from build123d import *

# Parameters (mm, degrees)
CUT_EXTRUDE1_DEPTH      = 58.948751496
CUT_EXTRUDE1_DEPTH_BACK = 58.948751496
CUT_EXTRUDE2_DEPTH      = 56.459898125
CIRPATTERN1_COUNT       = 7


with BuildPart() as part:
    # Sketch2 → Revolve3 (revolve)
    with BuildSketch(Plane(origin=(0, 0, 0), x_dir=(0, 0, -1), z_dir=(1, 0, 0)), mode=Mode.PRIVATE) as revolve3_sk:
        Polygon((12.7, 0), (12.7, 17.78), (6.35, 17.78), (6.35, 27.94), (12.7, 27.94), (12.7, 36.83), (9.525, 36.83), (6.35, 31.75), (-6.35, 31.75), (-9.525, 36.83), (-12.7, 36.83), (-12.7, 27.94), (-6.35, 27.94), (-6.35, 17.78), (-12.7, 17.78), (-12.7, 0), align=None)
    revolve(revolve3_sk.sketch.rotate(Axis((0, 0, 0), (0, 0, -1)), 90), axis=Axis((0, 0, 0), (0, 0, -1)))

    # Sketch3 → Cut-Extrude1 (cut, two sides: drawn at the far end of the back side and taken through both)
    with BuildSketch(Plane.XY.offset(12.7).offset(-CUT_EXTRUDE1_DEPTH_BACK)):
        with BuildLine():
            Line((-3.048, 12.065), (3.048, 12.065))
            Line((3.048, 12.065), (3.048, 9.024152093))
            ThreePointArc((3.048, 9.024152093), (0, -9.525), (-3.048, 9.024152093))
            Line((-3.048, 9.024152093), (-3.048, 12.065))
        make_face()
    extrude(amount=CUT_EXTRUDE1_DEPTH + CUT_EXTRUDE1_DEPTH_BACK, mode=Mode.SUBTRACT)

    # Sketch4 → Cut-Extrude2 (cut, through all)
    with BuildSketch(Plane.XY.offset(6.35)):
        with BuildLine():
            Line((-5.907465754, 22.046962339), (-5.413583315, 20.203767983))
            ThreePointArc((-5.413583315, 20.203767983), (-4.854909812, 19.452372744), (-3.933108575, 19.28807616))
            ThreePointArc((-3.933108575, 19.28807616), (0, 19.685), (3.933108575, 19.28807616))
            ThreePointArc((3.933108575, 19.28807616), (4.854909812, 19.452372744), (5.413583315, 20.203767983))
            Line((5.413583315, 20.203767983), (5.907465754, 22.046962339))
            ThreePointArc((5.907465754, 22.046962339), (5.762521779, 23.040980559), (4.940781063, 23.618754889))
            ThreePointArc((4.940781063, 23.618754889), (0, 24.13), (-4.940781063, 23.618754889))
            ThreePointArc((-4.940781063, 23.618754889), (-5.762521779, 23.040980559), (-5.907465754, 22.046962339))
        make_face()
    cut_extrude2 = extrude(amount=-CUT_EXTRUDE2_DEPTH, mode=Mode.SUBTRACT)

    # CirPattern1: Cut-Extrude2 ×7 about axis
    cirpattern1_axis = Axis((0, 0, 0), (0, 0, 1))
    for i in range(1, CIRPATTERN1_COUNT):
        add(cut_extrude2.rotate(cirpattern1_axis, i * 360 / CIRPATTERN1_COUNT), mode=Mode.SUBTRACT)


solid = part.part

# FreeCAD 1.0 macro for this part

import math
import FreeCAD as App
import Part
import Sketcher
from FreeCAD import Vector
Q = App.Units.Quantity

doc = App.newDocument("Part")
params = doc.addObject("Spreadsheet::Sheet", "Params")
for row, (alias, value) in enumerate([
    ("sketch1_height", "1 in"),
    ("sketch1_width", "0.7 in"),
    ("sketch1_width2", "0.4 in"),
    ("sketch1_height2", "0.5 in"),
    ("sketch1_width3", "0.35 in"),
    ("revolution_angle", "360 deg"),
    ("sketch2_radius", "0.375 in"),
    ("sketch2_width", "0.24 in"),
    ("sketch3_radius", "0.05 in"),
    ("sketch3_radius2", "0.95 in"),
    ("sketch3_radius3", "0.775 in"),
], start=1):
    params.set(f"A{row}", alias)
    params.set(f"B{row}", "=" + value)
    params.setAlias(f"B{row}", alias)

body = doc.addObject("PartDesign::Body", "Body")

sketch1 = body.newObject("Sketcher::SketchObject", "Sketch")
sketch1.AttachmentSupport = (doc.getObject("YZ_Plane"), [""])
sketch1.MapMode = "FlatFace"
sketch1.addGeometry([
    Part.LineSegment(Vector(0, -12.7, 0), Vector(17.78, -12.7, 0)),
    Part.LineSegment(Vector(17.78, -12.7, 0), Vector(17.78, -6.35, 0)),
    Part.LineSegment(Vector(17.78, -6.35, 0), Vector(27.94, -6.35, 0)),
    Part.LineSegment(Vector(27.94, -6.35, 0), Vector(27.94, -12.7, 0)),
    Part.LineSegment(Vector(27.94, -12.7, 0), Vector(36.83, -12.7, 0)),
    Part.LineSegment(Vector(36.83, -12.7, 0), Vector(36.83, -9.525, 0)),
    Part.LineSegment(Vector(36.83, -9.525, 0), Vector(31.75, -6.35, 0)),
    Part.LineSegment(Vector(31.75, -6.35, 0), Vector(31.75, 6.35, 0)),
    Part.LineSegment(Vector(31.75, 6.35, 0), Vector(36.83, 9.525, 0)),
    Part.LineSegment(Vector(36.83, 9.525, 0), Vector(36.83, 12.7, 0)),
    Part.LineSegment(Vector(36.83, 12.7, 0), Vector(27.94, 12.7, 0)),
    Part.LineSegment(Vector(27.94, 12.7, 0), Vector(27.94, 6.35, 0)),
    Part.LineSegment(Vector(27.94, 6.35, 0), Vector(17.78, 6.35, 0)),
    Part.LineSegment(Vector(17.78, 6.35, 0), Vector(17.78, 12.7, 0)),
    Part.LineSegment(Vector(17.78, 12.7, 0), Vector(0, 12.7, 0)),
    Part.LineSegment(Vector(0, 12.7, 0), Vector(0, -12.7, 0)),
], False)
sketch1.addConstraint([
    Sketcher.Constraint("Coincident", 0, 2, 1, 1),
    Sketcher.Constraint("Coincident", 1, 2, 2, 1),
    Sketcher.Constraint("Coincident", 2, 2, 3, 1),
    Sketcher.Constraint("Coincident", 3, 2, 4, 1),
    Sketcher.Constraint("Coincident", 4, 2, 5, 1),
    Sketcher.Constraint("Coincident", 5, 2, 6, 1),
    Sketcher.Constraint("Coincident", 6, 2, 7, 1),
    Sketcher.Constraint("Coincident", 7, 2, 8, 1),
    Sketcher.Constraint("Coincident", 8, 2, 9, 1),
    Sketcher.Constraint("Coincident", 9, 2, 10, 1),
    Sketcher.Constraint("Coincident", 10, 2, 11, 1),
    Sketcher.Constraint("Coincident", 11, 2, 12, 1),
    Sketcher.Constraint("Coincident", 12, 2, 13, 1),
    Sketcher.Constraint("Coincident", 13, 2, 14, 1),
    Sketcher.Constraint("Coincident", 14, 2, 15, 1),
    Sketcher.Constraint("Coincident", 15, 2, 0, 1),
    Sketcher.Constraint("Horizontal", 0),
    Sketcher.Constraint("Vertical", 1),
    Sketcher.Constraint("Horizontal", 2),
    Sketcher.Constraint("Vertical", 3),
    Sketcher.Constraint("Horizontal", 4),
    Sketcher.Constraint("Vertical", 5),
    Sketcher.Constraint("Vertical", 7),
    Sketcher.Constraint("Vertical", 9),
    Sketcher.Constraint("Horizontal", 10),
    Sketcher.Constraint("Vertical", 11),
    Sketcher.Constraint("Horizontal", 12),
    Sketcher.Constraint("Vertical", 13),
    Sketcher.Constraint("Horizontal", 14),
    Sketcher.Constraint("Vertical", 15),
    Sketcher.Constraint("Symmetric", 14, 2, 15, 2, -1, 1),
    Sketcher.Constraint("Symmetric", 5, 2, 8, 2, -1),
    Sketcher.Constraint("Symmetric", 3, 2, 10, 2, -1),
    Sketcher.Constraint("Symmetric", 1, 2, 12, 2, -1),
    Sketcher.Constraint("Horizontal", 0, 2, 3, 2),
    Sketcher.Constraint("Horizontal", 2, 2, 6, 2),
    Sketcher.Constraint("Horizontal", 7, 2, 11, 2),
    Sketcher.Constraint("DistanceY", 15, 2, 15, 1, Q("1 in")),
    Sketcher.Constraint("DistanceX", 0, 1, 0, 2, Q("0.7 in")),
    Sketcher.Constraint("DistanceX", 2, 1, 2, 2, Q("0.4 in")),
    Sketcher.Constraint("DistanceY", 7, 1, 7, 2, Q("0.5 in")),
    Sketcher.Constraint("DistanceX", 4, 1, 4, 2, Q("0.35 in")),
    Sketcher.Constraint("DistanceX", 6, 2, 5, 2, Q("0.2 in")),
    Sketcher.Constraint("DistanceY", 5, 1, 5, 2, Q("0.125 in")),
])
sketch1.setExpression("Constraints[37]", "Params.sketch1_height")
sketch1.setExpression("Constraints[38]", "Params.sketch1_width")
sketch1.setExpression("Constraints[39]", "Params.sketch1_width2")
sketch1.setExpression("Constraints[40]", "Params.sketch1_height2")
sketch1.setExpression("Constraints[41]", "Params.sketch1_width3")
revolution = body.newObject("PartDesign::Revolution", "Revolution")
revolution.Profile = sketch1
revolution.ReferenceAxis = (sketch1, ["V_Axis"])
revolution.setExpression("Angle", "Params.revolution_angle")

sketch2 = body.newObject("Sketcher::SketchObject", "Sketch001")
sketch2.AttachmentSupport = (doc.getObject("XY_Plane"), [""])
sketch2.MapMode = "FlatFace"
sketch2.AttachmentOffset = App.Placement(Vector(0, 0, 0.5 * 25.4), App.Rotation())
sketch2.addGeometry([
    Part.LineSegment(Vector(3.048, 12.065, 0), Vector(-3.048, 12.065, 0)),
    Part.LineSegment(Vector(-3.048, 12.065, 0), Vector(-3.048, 9.024152, 0)),
    Part.ArcOfCircle(Part.Circle(Vector(0, 0, 0), Vector(0, 0, 1), 9.525), math.radians(108.662925), math.radians(431.337075)),
    Part.LineSegment(Vector(3.048, 9.024152, 0), Vector(3.048, 12.065, 0)),
], False)
sketch2.addConstraint([
    Sketcher.Constraint("Coincident", 0, 2, 1, 1),
    Sketcher.Constraint("Coincident", 1, 2, 2, 1),
    Sketcher.Constraint("Coincident", 2, 2, 3, 1),
    Sketcher.Constraint("Coincident", 3, 2, 0, 1),
    Sketcher.Constraint("Horizontal", 0),
    Sketcher.Constraint("Vertical", 1),
    Sketcher.Constraint("Vertical", 3),
    Sketcher.Constraint("Coincident", 2, 3, -1, 1),
    Sketcher.Constraint("Horizontal", 1, 2, 2, 2),
    Sketcher.Constraint("Radius", 2, Q("0.375 in")),
    Sketcher.Constraint("DistanceX", 0, 2, 0, 1, Q("0.24 in")),
    Sketcher.Constraint("DistanceY", -1, 1, 0, 2, Q("0.475 in")),
])
sketch2.setExpression("Constraints[9]", "Params.sketch2_radius")
sketch2.setExpression("Constraints[10]", "Params.sketch2_width")
pocket1 = body.newObject("PartDesign::Pocket", "Pocket")
pocket1.Profile = sketch2
pocket1.Type = "ThroughAll"
pocket1.Midplane = True

sketch3 = body.newObject("Sketcher::SketchObject", "Sketch002")
sketch3.AttachmentSupport = (doc.getObject("XY_Plane"), [""])
sketch3.MapMode = "FlatFace"
sketch3.AttachmentOffset = App.Placement(Vector(0, 0, 0.25 * 25.4), App.Rotation())
sketch3.addGeometry([
    Part.LineSegment(Vector(-5.907466, 22.046962, 0), Vector(-5.413583, 20.203768, 0)),
    Part.ArcOfCircle(Part.Circle(Vector(-4.186858, 20.532468, 0), Vector(0, 0, 1), 1.27), math.radians(-165), math.radians(-78.474601)),
    Part.ArcOfCircle(Part.Circle(Vector(0, 0, 0), Vector(0, 0, 1), 19.685), math.radians(78.474601), math.radians(101.525399)),
    Part.ArcOfCircle(Part.Circle(Vector(4.186858, 20.532468, 0), Vector(0, 0, 1), 1.27), math.radians(-101.525399), math.radians(-15)),
    Part.LineSegment(Vector(5.413583, 20.203768, 0), Vector(5.907466, 22.046962, 0)),
    Part.ArcOfCircle(Part.Circle(Vector(4.68074, 22.375663, 0), Vector(0, 0, 1), 1.27), math.radians(-15), math.radians(78.184739)),
    Part.ArcOfCircle(Part.Circle(Vector(0, 0, 0), Vector(0, 0, 1), 24.13), math.radians(78.184739), math.radians(101.815261)),
    Part.ArcOfCircle(Part.Circle(Vector(-4.68074, 22.375663, 0), Vector(0, 0, 1), 1.27), math.radians(101.815261), math.radians(195)),
], False)
sketch3.addConstraint([
    Sketcher.Constraint("Tangent", 0, 2, 1, 1),
    Sketcher.Constraint("Tangent", 1, 2, 2, 2),
    Sketcher.Constraint("Tangent", 2, 1, 3, 1),
    Sketcher.Constraint("Tangent", 3, 2, 4, 1),
    Sketcher.Constraint("Tangent", 4, 2, 5, 1),
    Sketcher.Constraint("Tangent", 5, 2, 6, 1),
    Sketcher.Constraint("Tangent", 6, 2, 7, 1),
    Sketcher.Constraint("Tangent", 7, 2, 0, 1),
    Sketcher.Constraint("Coincident", 2, 3, -1, 1),
    Sketcher.Constraint("Coincident", 6, 3, -1, 1),
    Sketcher.Constraint("Equal", 1, 3),
    Sketcher.Constraint("Equal", 3, 5),
    Sketcher.Constraint("Equal", 5, 7),
    Sketcher.Constraint("Symmetric", 0, 2, 3, 2, -2),
    Sketcher.Constraint("Radius", 1, Q("0.05 in")),
    Sketcher.Constraint("Radius", 6, Q("0.95 in")),
    Sketcher.Constraint("Angle", 0, Q("-75 deg")),
    Sketcher.Constraint("Radius", 2, Q("0.775 in")),
    Sketcher.Constraint("DistanceY", -1, 1, 1, 3, Q("20.532468 mm")),
])
sketch3.setExpression("Constraints[14]", "Params.sketch3_radius")
sketch3.setExpression("Constraints[15]", "Params.sketch3_radius2")
sketch3.setExpression("Constraints[17]", "Params.sketch3_radius3")
pocket2 = body.newObject("PartDesign::Pocket", "Pocket001")
pocket2.Profile = sketch3
pocket2.Type = "ThroughAll"
doc.recompute()

polarpattern = body.newObject("PartDesign::PolarPattern", "PolarPattern")
polarpattern.Originals = [pocket2]
polarpattern.Axis = (doc.getObject("Z_Axis"), [""])
polarpattern.Angle = 360
polarpattern.Occurrences = 7
body.Tip = polarpattern

doc.recompute()
